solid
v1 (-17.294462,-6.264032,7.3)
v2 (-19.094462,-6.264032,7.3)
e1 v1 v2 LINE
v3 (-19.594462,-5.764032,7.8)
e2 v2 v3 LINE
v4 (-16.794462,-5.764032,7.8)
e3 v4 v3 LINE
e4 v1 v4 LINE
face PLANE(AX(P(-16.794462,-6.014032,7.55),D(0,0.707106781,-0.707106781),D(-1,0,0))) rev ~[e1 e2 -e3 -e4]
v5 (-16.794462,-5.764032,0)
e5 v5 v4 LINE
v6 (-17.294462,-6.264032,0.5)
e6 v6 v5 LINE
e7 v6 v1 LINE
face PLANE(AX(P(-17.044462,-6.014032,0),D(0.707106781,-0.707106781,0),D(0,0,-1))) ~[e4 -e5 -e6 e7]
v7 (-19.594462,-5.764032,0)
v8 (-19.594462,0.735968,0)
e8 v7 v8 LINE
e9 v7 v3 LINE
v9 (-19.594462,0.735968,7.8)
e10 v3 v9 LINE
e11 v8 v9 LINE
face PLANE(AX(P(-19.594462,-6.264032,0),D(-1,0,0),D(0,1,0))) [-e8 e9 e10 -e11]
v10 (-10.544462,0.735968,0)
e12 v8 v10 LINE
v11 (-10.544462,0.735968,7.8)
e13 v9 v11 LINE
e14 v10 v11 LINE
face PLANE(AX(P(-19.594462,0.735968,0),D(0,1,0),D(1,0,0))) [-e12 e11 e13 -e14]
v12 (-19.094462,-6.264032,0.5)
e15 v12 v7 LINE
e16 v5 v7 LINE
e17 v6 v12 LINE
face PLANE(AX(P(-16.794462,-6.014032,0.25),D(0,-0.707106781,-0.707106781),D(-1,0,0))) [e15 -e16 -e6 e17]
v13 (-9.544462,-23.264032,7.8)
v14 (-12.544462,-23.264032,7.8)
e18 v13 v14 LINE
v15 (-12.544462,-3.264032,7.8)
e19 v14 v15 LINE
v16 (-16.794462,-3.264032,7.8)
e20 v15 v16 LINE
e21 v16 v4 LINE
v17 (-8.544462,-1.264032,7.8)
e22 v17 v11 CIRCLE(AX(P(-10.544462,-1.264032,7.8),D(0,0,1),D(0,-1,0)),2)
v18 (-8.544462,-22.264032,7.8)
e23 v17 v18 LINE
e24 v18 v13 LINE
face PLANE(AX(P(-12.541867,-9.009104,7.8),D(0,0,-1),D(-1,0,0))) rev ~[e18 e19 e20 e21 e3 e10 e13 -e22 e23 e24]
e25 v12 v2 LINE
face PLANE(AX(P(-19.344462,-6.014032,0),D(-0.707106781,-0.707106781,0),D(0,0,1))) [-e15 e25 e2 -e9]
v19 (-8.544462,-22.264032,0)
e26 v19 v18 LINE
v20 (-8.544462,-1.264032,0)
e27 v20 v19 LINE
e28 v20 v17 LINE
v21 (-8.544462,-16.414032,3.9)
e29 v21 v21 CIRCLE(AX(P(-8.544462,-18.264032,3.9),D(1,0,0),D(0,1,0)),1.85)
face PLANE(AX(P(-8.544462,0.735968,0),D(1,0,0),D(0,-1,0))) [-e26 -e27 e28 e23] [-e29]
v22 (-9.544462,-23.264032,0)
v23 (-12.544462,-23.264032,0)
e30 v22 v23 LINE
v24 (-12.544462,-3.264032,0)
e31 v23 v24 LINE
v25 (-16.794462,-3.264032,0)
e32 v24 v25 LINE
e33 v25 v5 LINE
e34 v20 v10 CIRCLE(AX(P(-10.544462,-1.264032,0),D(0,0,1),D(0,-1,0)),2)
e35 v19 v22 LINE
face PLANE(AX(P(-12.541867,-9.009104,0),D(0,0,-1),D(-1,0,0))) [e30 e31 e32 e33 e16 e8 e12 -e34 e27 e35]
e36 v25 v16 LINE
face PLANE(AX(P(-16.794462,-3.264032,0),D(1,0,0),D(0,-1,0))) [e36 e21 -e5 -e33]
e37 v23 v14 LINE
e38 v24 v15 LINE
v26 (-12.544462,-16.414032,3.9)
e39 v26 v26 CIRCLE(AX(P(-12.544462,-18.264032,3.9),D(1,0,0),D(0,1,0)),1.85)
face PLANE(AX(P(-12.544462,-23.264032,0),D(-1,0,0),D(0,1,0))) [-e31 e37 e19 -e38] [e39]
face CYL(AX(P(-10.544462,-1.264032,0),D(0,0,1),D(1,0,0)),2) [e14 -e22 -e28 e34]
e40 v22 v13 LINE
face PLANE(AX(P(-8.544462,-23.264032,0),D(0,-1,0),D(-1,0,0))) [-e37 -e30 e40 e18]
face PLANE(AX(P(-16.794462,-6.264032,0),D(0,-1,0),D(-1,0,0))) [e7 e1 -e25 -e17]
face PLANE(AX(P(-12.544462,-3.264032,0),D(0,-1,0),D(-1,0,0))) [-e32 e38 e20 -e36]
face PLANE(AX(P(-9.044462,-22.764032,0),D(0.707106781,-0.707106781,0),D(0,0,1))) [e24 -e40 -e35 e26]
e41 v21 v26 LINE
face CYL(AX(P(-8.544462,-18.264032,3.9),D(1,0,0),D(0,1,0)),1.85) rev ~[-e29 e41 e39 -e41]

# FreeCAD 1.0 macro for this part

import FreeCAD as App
import Part
import Sketcher


def edges_at(feature, points):
    """Names of the edges that pass closest to the given points."""
    edges = feature.Shape.Edges
    near = lambda p: min(range(len(edges)), key=lambda i: edges[i].distToShape(Part.Vertex(*p))[0])
    return sorted({f"Edge{near(p) + 1}" for p in points})


def add_polygon(sketch, points):
    """Adds a closed chain of lines whose ends are joined by coincident constraints."""
    first, n = sketch.GeometryCount, len(points)
    for a, b in zip(points, points[1:] + points[:1]):
        sketch.addGeometry(Part.LineSegment(App.Vector(*a, 0), App.Vector(*b, 0)), False)
    for i in range(n):
        sketch.addConstraint(Sketcher.Constraint("Coincident", first + i, 2, first + (i + 1) % n, 1))

doc = App.newDocument("Part")
body = doc.addObject("PartDesign::Body", "Body")

# Sketch on XY plane
sketch1 = body.newObject("Sketcher::SketchObject", "Sketch")
sketch1.AttachmentSupport = (doc.getObject("XY_Plane"), [""])
sketch1.MapMode = "FlatFace"
add_polygon(sketch1, [(-19.6, -6.3), (-16.8, -6.3), (-16.8, -3.3), (-12.5, -3.3), (-12.5, -23.3), (-8.5, -23.3), (-8.5, 0.7), (-19.6, 0.7)])  # lines 0-7
sketch1.addConstraint([
    Sketcher.Constraint("Horizontal", 0),
    Sketcher.Constraint("Vertical", 1),
    Sketcher.Constraint("Horizontal", 2),
    Sketcher.Constraint("Vertical", 3),
    Sketcher.Constraint("Horizontal", 4),
    Sketcher.Constraint("Vertical", 5),
    Sketcher.Constraint("Horizontal", 6),
    Sketcher.Constraint("Vertical", 7),
    Sketcher.Constraint("DistanceX", 4, 1, 4, 2, 4.0),
    Sketcher.Constraint("DistanceY", 1, 1, 1, 2, 3.0),
    Sketcher.Constraint("DistanceY", 3, 2, 3, 1, 20.0),
    Sketcher.Constraint("DistanceY", 5, 1, 5, 2, 24.0),
    Sketcher.Constraint("DistanceX", 0, 1, 0, 2, 2.8),
    Sketcher.Constraint("DistanceX", 2, 1, 2, 2, 4.25),
    Sketcher.Constraint("DistanceX", 0, 2, -1, 1, 16.794462),
    Sketcher.Constraint("DistanceY", 1, 2, -1, 1, 3.264032),
])
pad1 = body.newObject("PartDesign::Pad", "Pad")
pad1.Profile = sketch1
pad1.Length = 7.8

# Sketch on YZ plane
sketch2 = body.newObject("Sketcher::SketchObject", "Sketch001")
sketch2.AttachmentSupport = (doc.getObject("YZ_Plane"), [""])
sketch2.MapMode = "FlatFace"
sketch2.AttachmentOffset = App.Placement(App.Vector(0, 0, -8.544462), App.Rotation())
sketch2.addGeometry(Part.Circle(App.Vector(-18.3, 3.9, 0), App.Vector(0, 0, 1), 1.9), False)
sketch2.addConstraint([
    Sketcher.Constraint("Diameter", 0, 3.7),
    Sketcher.Constraint("DistanceY", -1, 1, 0, 3, 3.9),
    Sketcher.Constraint("DistanceX", 0, 3, -1, 1, 18.264032),
])
pocket1 = body.newObject("PartDesign::Pocket", "Pocket")
pocket1.Profile = sketch2
pocket1.Length = 5
doc.recompute()

chamfer = body.newObject("PartDesign::Chamfer", "Chamfer")
chamfer.Base = (pocket1, edges_at(pocket1, [
    (-16.794, -6.264, 3.9),
    (-18.194, -6.264, 0),
    (-19.594, -6.264, 3.9),
    (-18.194, -6.264, 7.8),
]))
chamfer.Size = 0.5
doc.recompute()

chamfer2 = body.newObject("PartDesign::Chamfer", "Chamfer001")
chamfer2.Base = (chamfer, edges_at(chamfer, [(-8.544, -23.264, 3.9)]))
chamfer2.Size = 1
doc.recompute()

fillet = body.newObject("PartDesign::Fillet", "Fillet")
fillet.Base = (chamfer2, edges_at(chamfer2, [(-8.544, 0.736, 3.9)]))
fillet.Radius = 2

doc.recompute()
